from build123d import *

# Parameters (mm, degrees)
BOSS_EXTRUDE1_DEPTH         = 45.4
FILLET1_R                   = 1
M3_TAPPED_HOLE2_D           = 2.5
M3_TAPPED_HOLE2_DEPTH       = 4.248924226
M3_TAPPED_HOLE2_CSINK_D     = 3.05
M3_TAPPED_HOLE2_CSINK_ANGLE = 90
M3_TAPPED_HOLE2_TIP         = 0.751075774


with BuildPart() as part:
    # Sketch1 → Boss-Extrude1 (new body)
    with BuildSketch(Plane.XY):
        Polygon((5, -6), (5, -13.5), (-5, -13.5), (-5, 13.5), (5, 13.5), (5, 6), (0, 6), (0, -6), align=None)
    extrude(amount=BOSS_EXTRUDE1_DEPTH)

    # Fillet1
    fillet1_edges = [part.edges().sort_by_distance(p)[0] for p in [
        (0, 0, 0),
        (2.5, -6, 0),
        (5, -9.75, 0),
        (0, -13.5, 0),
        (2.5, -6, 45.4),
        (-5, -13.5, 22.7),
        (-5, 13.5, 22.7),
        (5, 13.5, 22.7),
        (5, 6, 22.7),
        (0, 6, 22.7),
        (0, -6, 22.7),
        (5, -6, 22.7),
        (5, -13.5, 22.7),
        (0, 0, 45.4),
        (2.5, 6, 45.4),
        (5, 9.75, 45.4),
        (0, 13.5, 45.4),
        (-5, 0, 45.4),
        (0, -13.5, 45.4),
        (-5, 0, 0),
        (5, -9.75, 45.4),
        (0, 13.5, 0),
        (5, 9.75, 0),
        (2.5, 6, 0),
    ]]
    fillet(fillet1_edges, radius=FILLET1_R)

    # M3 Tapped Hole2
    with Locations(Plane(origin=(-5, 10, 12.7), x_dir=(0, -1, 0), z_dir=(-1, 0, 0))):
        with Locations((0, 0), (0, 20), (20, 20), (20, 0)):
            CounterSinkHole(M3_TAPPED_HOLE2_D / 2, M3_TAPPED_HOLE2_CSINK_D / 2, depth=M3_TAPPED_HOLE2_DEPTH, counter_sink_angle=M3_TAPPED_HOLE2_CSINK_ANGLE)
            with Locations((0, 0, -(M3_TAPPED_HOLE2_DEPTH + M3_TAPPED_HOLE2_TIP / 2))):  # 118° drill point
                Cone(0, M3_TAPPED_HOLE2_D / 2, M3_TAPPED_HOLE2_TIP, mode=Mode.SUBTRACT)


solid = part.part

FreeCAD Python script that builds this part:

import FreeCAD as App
import Part
import Sketcher
from FreeCAD import Vector
Q = App.Units.Quantity

doc = App.newDocument("Part")
body = doc.addObject("PartDesign::Body", "Body")

sketch1 = body.newObject("Sketcher::SketchObject", "Sketch")
sketch1.AttachmentSupport = (doc.getObject("XY_Plane"), [""])
sketch1.MapMode = "FlatFace"
sketch1.addGeometry([
    Part.LineSegment(Vector(5, -13.5, 0), Vector(5, -6, 0)),
    Part.LineSegment(Vector(5, -6, 0), Vector(0, -6, 0)),
    Part.LineSegment(Vector(0, -6, 0), Vector(0, 6, 0)),
    Part.LineSegment(Vector(0, 6, 0), Vector(5, 6, 0)),
    Part.LineSegment(Vector(5, 6, 0), Vector(5, 13.5, 0)),
    Part.LineSegment(Vector(5, 13.5, 0), Vector(-5, 13.5, 0)),
    Part.LineSegment(Vector(-5, 13.5, 0), Vector(-5, -13.5, 0)),
    Part.LineSegment(Vector(-5, -13.5, 0), Vector(5, -13.5, 0)),
], False)
sketch1.addConstraint([
    Sketcher.Constraint("Coincident", 0, 2, 1, 1),
    Sketcher.Constraint("Coincident", 1, 2, 2, 1),
    Sketcher.Constraint("Coincident", 2, 2, 3, 1),
    Sketcher.Constraint("Coincident", 3, 2, 4, 1),
    Sketcher.Constraint("Coincident", 4, 2, 5, 1),
    Sketcher.Constraint("Coincident", 5, 2, 6, 1),
    Sketcher.Constraint("Coincident", 6, 2, 7, 1),
    Sketcher.Constraint("Coincident", 7, 2, 0, 1),
    Sketcher.Constraint("Vertical", 0),
    Sketcher.Constraint("Horizontal", 1),
    Sketcher.Constraint("Vertical", 2),
    Sketcher.Constraint("Horizontal", 3),
    Sketcher.Constraint("Vertical", 4),
    Sketcher.Constraint("Horizontal", 5),
    Sketcher.Constraint("Vertical", 6),
    Sketcher.Constraint("Horizontal", 7),
    Sketcher.Constraint("Symmetric", 1, 2, 2, 2, -1, 1),
    Sketcher.Constraint("Symmetric", 4, 2, 6, 2, -1, 1),
    Sketcher.Constraint("Vertical", 0, 2, 3, 2),
    Sketcher.Constraint("DistanceX", 1, 2, 1, 1, Q("5 mm")),
    Sketcher.Constraint("DistanceY", 2, 1, 2, 2, Q("12 mm")),
    Sketcher.Constraint("DistanceY", 6, 2, 6, 1, Q("27 mm")),
])
pad1 = body.newObject("PartDesign::Pad", "Pad")
pad1.Profile = sketch1
pad1.Length = 45.4
doc.recompute()

fillet = body.newObject("PartDesign::Fillet", "Fillet")
fillet.Base = (pad1, ["Edge1"])
fillet.UseAllEdges = True
fillet.Radius = 1

sketch2 = body.newObject("Sketcher::SketchObject", "Sketch001")
sketch2.AttachmentSupport = (doc.getObject("YZ_Plane"), [""])
sketch2.MapMode = "FlatFace"
sketch2.AttachmentOffset = App.Placement(Vector(0, 0, -5), App.Rotation())
sketch2.addGeometry([
    Part.Circle(Vector(10, 12.7, 0), Vector(0, 0, 1), 1.25),
    Part.Circle(Vector(10, 32.7, 0), Vector(0, 0, 1), 1.25),
    Part.Circle(Vector(-10, 32.7, 0), Vector(0, 0, 1), 1.25),
    Part.Circle(Vector(-10, 12.7, 0), Vector(0, 0, 1), 1.25),
], False)
sketch2.addConstraint([
    Sketcher.Constraint("Equal", 0, 1),
    Sketcher.Constraint("Equal", 1, 2),
    Sketcher.Constraint("Equal", 2, 3),
    Sketcher.Constraint("Symmetric", 1, 3, 2, 3, -2),
    Sketcher.Constraint("Symmetric", 0, 3, 3, 3, -2),
    Sketcher.Constraint("Vertical", 0, 3, 1, 3),
    Sketcher.Constraint("Diameter", 0, Q("2.5 mm")),
    Sketcher.Constraint("DistanceX", -1, 1, 0, 3, Q("10 mm")),
    Sketcher.Constraint("DistanceY", 0, 3, 1, 3, Q("20 mm")),
    Sketcher.Constraint("DistanceY", -1, 1, 0, 3, Q("12.7 mm")),
])
doc.recompute()
hole = body.newObject("PartDesign::Hole", "Hole")
hole.Profile = sketch2
hole.ThreadType = "None"
hole.Diameter = 2.5
hole.DepthType = "Dimension"
hole.Depth = 4.248924
hole.DrillPoint = "Angled"
hole.DrillPointAngle = 118
hole.HoleCutType = "Countersink"
hole.HoleCutDiameter = 3.05
hole.HoleCutCountersinkAngle = 90
hole.Reversed = True

doc.recompute()
